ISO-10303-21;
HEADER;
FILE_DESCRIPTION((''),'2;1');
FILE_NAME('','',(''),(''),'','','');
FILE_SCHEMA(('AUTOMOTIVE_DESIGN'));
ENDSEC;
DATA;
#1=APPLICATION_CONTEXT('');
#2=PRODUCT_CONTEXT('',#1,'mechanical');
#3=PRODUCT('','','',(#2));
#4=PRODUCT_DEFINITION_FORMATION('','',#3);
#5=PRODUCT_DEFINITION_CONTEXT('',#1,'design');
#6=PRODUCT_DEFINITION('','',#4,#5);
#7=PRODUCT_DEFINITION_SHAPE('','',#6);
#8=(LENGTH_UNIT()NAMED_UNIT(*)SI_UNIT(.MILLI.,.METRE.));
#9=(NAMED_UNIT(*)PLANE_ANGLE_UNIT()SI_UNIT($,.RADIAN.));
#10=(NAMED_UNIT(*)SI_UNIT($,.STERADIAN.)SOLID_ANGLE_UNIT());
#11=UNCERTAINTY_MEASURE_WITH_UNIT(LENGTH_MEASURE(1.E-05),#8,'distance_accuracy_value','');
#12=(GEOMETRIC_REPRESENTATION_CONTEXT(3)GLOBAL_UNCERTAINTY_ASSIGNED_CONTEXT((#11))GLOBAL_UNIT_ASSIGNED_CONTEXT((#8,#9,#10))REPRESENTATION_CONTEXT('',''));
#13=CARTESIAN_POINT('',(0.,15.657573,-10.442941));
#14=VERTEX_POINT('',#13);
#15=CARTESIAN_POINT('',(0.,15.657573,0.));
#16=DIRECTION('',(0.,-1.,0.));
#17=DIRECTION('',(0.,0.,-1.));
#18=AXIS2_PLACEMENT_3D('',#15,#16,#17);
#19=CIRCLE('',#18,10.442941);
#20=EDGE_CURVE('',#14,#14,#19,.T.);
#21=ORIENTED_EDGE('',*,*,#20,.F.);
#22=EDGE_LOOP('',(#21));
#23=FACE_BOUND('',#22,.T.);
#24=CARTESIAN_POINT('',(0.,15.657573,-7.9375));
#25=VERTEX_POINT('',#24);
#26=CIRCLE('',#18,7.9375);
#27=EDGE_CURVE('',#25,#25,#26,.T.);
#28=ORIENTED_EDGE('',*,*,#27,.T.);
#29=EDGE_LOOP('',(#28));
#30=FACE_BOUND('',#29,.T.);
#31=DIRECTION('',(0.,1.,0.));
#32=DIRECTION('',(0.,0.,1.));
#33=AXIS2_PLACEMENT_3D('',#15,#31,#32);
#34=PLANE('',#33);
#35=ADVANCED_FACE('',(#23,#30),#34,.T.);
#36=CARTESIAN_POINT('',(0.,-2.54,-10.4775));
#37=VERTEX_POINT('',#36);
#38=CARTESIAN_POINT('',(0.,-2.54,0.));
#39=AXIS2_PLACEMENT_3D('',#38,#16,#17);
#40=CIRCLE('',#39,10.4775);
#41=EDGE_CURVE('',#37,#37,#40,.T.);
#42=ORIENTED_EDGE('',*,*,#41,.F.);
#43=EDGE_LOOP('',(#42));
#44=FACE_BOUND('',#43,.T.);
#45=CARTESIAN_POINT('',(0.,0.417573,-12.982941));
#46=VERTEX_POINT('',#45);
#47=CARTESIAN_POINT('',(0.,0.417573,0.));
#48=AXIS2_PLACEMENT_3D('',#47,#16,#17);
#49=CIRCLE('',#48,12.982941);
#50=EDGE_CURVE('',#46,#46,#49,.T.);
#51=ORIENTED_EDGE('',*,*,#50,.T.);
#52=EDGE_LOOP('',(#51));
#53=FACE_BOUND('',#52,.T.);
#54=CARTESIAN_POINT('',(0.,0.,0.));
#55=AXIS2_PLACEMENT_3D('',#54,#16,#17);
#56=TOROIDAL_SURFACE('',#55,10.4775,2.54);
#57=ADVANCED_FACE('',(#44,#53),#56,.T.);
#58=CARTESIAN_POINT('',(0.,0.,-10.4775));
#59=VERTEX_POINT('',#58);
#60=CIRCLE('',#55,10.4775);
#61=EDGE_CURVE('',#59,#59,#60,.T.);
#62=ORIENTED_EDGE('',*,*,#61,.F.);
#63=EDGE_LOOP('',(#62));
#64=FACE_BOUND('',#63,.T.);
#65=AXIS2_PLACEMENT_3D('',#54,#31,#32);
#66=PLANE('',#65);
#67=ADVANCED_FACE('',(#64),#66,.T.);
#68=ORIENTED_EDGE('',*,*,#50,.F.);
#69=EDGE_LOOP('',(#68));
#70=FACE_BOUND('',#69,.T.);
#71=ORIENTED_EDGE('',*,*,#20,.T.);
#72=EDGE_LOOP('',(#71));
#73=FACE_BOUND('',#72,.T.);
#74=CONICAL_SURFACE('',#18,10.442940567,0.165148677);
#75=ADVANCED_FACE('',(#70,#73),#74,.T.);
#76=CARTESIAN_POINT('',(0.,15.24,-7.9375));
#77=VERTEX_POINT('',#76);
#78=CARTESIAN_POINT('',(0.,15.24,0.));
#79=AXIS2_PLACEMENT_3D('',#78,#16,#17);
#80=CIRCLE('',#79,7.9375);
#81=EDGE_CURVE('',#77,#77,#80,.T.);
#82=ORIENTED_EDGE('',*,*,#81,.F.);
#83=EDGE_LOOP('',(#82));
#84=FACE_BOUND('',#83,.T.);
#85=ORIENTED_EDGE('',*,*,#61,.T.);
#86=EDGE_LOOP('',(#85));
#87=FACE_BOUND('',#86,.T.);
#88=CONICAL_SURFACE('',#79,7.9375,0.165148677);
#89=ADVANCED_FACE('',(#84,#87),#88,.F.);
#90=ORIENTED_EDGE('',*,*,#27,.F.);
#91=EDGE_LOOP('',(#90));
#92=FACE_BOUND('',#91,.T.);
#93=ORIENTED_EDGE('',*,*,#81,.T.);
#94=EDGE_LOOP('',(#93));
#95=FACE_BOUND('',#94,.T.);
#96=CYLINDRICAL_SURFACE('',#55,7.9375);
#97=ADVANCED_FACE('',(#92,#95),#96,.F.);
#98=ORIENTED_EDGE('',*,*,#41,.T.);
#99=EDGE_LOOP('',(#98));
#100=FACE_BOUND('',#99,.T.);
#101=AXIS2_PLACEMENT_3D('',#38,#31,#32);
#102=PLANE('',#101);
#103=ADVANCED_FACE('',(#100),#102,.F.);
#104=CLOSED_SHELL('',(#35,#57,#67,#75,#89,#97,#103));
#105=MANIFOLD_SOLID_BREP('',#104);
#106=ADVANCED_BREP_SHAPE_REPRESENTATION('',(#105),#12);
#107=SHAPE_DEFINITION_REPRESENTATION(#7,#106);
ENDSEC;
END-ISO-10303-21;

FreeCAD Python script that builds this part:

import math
import FreeCAD as App
import Part
import Sketcher
Q = App.Units.Quantity

doc = App.newDocument("Part")
params = doc.addObject("Spreadsheet::Sheet", "Params")
for row, (alias, value) in enumerate([
    ("sketch1_radius", "0.1 in"),
    ("revolution_angle", "360 deg"),
], start=1):
    params.set(f"A{row}", alias)
    params.set(f"B{row}", "=" + value)
    params.setAlias(f"B{row}", alias)

body = doc.addObject("PartDesign::Body", "Body")

sketch1 = body.newObject("Sketcher::SketchObject", "Sketch")
sketch1.AttachmentSupport = (doc.getObject("XY_Plane"), [""])
sketch1.MapMode = "FlatFace"
sketch1.addGeometry([
    Part.LineSegment(App.Vector(10.48, 0, 0), App.Vector(0, 0, 0)),
    Part.LineSegment(App.Vector(0, 0, 0), App.Vector(0, -2.54, 0)),
    Part.LineSegment(App.Vector(0, -2.54, 0), App.Vector(10.48, -2.54, 0)),
    Part.ArcOfCircle(Part.Circle(App.Vector(10.48, 0, 0), App.Vector(0, 0, 1), 2.54), math.radians(-90), math.radians(9)),
    Part.LineSegment(App.Vector(12.98, 0.42, 0), App.Vector(10.44, 15.66, 0)),
    Part.LineSegment(App.Vector(10.44, 15.66, 0), App.Vector(7.94, 15.66, 0)),
    Part.LineSegment(App.Vector(7.94, 15.66, 0), App.Vector(7.94, 15.24, 0)),
    Part.LineSegment(App.Vector(7.94, 15.24, 0), App.Vector(10.48, 0, 0)),
], False)
sketch1.addConstraint([
    Sketcher.Constraint("Coincident", 0, 2, 1, 1),
    Sketcher.Constraint("Coincident", 1, 2, 2, 1),
    Sketcher.Constraint("Tangent", 2, 2, 3, 1),
    Sketcher.Constraint("Tangent", 3, 2, 4, 1),
    Sketcher.Constraint("Coincident", 4, 2, 5, 1),
    Sketcher.Constraint("Coincident", 5, 2, 6, 1),
    Sketcher.Constraint("Coincident", 6, 2, 7, 1),
    Sketcher.Constraint("Coincident", 7, 2, 0, 1),
    Sketcher.Constraint("Horizontal", 0),
    Sketcher.Constraint("Vertical", 1),
    Sketcher.Constraint("Horizontal", 2),
    Sketcher.Constraint("Horizontal", 5),
    Sketcher.Constraint("Vertical", 6),
    Sketcher.Constraint("Coincident", 0, 2, -1, 1),
    Sketcher.Constraint("Coincident", 7, 2, 3, 3),
    Sketcher.Constraint("Parallel", 4, 7),
    Sketcher.Constraint("Equal", 4, 7),
    Sketcher.Constraint("Radius", 3, Q("0.1 in")),
    Sketcher.Constraint("DistanceY", -1, 1, 6, 2, Q("0.6 in")),
    Sketcher.Constraint("DistanceX", 4, 2, 3, 2, Q("0.1 in")),
    Sketcher.Constraint("DistanceX", 0, 2, 0, 1, Q("0.4125 in")),
])
sketch1.setExpression("Constraints[17]", "Params.sketch1_radius")
revolution = body.newObject("PartDesign::Revolution", "Revolution")
revolution.Profile = sketch1
revolution.ReferenceAxis = (sketch1, ["V_Axis"])
revolution.setExpression("Angle", "Params.revolution_angle")

doc.recompute()
